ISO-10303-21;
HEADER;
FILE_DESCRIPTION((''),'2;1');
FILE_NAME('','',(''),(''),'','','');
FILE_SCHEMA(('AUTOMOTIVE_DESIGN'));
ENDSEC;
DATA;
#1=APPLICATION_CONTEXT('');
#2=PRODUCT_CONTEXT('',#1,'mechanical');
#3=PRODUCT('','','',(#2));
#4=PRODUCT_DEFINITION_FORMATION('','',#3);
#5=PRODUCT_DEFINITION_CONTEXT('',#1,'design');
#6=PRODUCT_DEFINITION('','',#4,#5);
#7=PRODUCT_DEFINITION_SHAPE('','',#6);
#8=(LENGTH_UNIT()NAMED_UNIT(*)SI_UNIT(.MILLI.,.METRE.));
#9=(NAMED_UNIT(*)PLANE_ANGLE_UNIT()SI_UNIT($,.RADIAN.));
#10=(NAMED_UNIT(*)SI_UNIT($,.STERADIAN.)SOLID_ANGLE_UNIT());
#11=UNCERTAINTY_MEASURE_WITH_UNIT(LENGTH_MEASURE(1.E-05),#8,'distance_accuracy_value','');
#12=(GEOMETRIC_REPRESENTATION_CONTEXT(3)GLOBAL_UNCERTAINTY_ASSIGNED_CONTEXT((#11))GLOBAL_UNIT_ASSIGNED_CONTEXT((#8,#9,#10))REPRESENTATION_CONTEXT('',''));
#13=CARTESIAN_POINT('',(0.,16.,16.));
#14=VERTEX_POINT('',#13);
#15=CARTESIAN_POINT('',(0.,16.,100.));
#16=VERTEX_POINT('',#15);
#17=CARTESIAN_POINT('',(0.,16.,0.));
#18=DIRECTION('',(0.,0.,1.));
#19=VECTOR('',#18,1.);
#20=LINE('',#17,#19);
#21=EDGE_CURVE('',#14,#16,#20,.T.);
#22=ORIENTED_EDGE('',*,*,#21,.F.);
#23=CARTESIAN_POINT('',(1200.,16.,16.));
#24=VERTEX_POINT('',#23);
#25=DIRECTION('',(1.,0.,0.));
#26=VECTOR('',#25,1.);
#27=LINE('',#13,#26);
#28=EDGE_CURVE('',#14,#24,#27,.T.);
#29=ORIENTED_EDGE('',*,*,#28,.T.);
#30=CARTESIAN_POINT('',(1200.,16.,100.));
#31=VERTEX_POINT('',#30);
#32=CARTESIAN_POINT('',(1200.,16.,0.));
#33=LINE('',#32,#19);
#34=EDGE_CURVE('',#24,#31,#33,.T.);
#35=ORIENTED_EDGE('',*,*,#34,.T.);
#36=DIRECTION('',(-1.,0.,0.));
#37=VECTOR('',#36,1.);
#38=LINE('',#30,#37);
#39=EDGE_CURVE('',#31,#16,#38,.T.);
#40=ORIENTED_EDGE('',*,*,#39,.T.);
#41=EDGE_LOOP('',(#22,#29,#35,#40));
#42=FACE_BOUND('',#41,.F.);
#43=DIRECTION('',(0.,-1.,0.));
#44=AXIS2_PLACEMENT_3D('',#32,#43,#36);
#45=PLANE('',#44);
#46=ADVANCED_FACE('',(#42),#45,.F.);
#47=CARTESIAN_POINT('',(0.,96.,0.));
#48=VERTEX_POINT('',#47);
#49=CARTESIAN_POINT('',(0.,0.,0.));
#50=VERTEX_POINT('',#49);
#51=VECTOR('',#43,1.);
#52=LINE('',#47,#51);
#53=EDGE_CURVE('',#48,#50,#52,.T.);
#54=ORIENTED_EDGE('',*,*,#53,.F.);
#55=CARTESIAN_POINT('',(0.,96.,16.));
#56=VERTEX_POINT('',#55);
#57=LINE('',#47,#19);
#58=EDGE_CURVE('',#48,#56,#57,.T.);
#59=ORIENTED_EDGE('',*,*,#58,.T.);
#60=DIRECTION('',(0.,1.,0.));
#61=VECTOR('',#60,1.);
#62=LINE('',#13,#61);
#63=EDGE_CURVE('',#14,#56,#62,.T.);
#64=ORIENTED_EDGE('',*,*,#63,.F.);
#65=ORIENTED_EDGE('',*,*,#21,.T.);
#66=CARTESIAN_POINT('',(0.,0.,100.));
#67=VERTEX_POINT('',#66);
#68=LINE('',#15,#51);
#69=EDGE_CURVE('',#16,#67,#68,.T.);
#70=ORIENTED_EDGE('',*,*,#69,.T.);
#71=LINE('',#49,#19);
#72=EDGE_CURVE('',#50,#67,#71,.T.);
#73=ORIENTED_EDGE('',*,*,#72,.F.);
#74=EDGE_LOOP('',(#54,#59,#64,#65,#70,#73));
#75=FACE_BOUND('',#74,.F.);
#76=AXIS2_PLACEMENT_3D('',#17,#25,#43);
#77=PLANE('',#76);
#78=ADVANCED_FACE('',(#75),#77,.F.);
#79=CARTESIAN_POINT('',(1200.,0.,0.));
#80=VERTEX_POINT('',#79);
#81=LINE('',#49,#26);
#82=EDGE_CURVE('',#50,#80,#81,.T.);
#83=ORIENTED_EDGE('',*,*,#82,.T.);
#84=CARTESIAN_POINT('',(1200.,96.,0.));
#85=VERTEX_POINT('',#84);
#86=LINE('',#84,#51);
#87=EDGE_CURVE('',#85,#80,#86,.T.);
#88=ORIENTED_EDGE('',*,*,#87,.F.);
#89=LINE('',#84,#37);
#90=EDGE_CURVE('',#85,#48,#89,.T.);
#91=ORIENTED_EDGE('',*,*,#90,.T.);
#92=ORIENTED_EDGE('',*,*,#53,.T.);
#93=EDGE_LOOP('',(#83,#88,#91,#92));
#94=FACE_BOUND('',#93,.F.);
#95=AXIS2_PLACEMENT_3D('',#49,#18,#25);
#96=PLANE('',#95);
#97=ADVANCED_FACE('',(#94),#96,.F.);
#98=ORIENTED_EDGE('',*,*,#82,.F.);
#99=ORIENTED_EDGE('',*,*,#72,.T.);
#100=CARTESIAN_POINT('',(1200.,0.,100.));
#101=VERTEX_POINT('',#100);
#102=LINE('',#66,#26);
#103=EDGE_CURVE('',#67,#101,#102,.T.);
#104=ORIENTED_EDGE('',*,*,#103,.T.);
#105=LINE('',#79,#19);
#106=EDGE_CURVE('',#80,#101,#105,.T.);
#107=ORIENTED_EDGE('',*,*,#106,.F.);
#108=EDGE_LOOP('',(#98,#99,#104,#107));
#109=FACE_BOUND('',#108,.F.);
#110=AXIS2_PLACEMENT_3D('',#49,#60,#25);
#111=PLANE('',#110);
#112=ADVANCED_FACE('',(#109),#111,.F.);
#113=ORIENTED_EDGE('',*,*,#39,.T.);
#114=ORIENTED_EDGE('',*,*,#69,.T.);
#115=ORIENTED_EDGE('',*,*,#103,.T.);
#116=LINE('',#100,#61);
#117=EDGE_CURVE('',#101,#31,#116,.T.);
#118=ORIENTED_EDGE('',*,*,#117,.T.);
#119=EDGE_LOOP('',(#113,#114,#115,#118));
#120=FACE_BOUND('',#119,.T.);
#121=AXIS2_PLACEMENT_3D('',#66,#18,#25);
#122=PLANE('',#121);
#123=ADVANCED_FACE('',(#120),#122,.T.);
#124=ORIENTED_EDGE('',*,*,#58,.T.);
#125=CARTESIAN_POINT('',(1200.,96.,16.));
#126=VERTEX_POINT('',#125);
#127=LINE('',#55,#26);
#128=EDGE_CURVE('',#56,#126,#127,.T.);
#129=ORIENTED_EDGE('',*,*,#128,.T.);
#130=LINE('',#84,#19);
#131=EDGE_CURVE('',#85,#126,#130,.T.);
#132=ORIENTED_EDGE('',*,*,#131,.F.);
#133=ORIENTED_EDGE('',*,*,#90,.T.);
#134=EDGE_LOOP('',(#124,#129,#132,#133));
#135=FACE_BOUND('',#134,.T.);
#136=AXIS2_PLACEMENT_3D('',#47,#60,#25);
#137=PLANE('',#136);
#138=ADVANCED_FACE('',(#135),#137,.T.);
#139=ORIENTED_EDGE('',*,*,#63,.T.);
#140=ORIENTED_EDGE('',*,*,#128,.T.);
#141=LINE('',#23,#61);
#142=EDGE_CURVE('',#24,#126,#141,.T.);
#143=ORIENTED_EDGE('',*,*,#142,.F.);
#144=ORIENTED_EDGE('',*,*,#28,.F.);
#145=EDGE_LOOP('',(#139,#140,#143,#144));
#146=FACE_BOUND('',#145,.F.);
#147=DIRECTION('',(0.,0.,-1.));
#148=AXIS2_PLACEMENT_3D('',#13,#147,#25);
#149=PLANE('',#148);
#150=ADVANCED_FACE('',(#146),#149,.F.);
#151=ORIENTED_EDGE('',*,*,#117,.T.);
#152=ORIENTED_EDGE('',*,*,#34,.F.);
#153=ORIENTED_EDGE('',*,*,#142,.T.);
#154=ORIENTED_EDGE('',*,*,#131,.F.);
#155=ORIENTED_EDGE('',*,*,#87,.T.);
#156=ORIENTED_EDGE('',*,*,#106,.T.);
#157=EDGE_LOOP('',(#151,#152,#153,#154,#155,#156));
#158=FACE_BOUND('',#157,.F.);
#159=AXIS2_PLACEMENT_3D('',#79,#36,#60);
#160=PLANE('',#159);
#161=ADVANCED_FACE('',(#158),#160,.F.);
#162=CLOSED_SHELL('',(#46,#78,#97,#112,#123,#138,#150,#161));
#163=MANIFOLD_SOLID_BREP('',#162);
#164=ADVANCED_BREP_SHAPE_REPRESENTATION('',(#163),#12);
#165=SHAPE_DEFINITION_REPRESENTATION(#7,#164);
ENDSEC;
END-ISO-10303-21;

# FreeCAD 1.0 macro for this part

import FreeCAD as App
import Part
import Sketcher
Q = App.Units.Quantity

doc = App.newDocument("Part")
body = doc.addObject("PartDesign::Body", "Body")

sketch1 = body.newObject("Sketcher::SketchObject", "Sketch")
sketch1.AttachmentSupport = (doc.getObject("XY_Plane"), [""])
sketch1.MapMode = "FlatFace"
sketch1.addGeometry(Part.LineSegment(App.Vector(0, 16, 0), App.Vector(0, 0, 0)), False)
sketch1.addGeometry(Part.LineSegment(App.Vector(0, 0, 0), App.Vector(1200, 0, 0)), False)
sketch1.addGeometry(Part.LineSegment(App.Vector(1200, 0, 0), App.Vector(1200, 16, 0)), False)
sketch1.addGeometry(Part.LineSegment(App.Vector(1200, 16, 0), App.Vector(0, 16, 0)), False)
sketch1.addConstraint(Sketcher.Constraint("Coincident", 0, 2, 1, 1))
sketch1.addConstraint(Sketcher.Constraint("Coincident", 1, 2, 2, 1))
sketch1.addConstraint(Sketcher.Constraint("Coincident", 2, 2, 3, 1))
sketch1.addConstraint(Sketcher.Constraint("Coincident", 3, 2, 0, 1))
sketch1.addConstraint(Sketcher.Constraint("Vertical", 0))
sketch1.addConstraint(Sketcher.Constraint("Horizontal", 1))
sketch1.addConstraint(Sketcher.Constraint("Vertical", 2))
sketch1.addConstraint(Sketcher.Constraint("Horizontal", 3))
sketch1.addConstraint(Sketcher.Constraint("Coincident", 0, 2, -1, 1))
sketch1.addConstraint(Sketcher.Constraint("DistanceX", 1, 1, 1, 2, Q("1200 mm")))
sketch1.addConstraint(Sketcher.Constraint("DistanceY", 0, 2, 0, 1, Q("16 mm")))
pad1 = body.newObject("PartDesign::Pad", "Pad")
pad1.Profile = sketch1
pad1.Length = 100

sketch2 = body.newObject("Sketcher::SketchObject", "Sketch001")
sketch2.AttachmentSupport = (doc.getObject("XZ_Plane"), [""])
sketch2.MapMode = "FlatFace"
sketch2.AttachmentOffset = App.Placement(App.Vector(0, 0, -16), App.Rotation())
sketch2.addGeometry(Part.LineSegment(App.Vector(1200, 16, 0), App.Vector(1200, 0, 0)), False)
sketch2.addGeometry(Part.LineSegment(App.Vector(1200, 0, 0), App.Vector(0, 0, 0)), False)
sketch2.addGeometry(Part.LineSegment(App.Vector(0, 0, 0), App.Vector(0, 16, 0)), False)
sketch2.addGeometry(Part.LineSegment(App.Vector(0, 16, 0), App.Vector(1200, 16, 0)), False)
sketch2.addConstraint(Sketcher.Constraint("Coincident", 0, 2, 1, 1))
sketch2.addConstraint(Sketcher.Constraint("Coincident", 1, 2, 2, 1))
sketch2.addConstraint(Sketcher.Constraint("Coincident", 2, 2, 3, 1))
sketch2.addConstraint(Sketcher.Constraint("Coincident", 3, 2, 0, 1))
sketch2.addConstraint(Sketcher.Constraint("Vertical", 0))
sketch2.addConstraint(Sketcher.Constraint("Horizontal", 1))
sketch2.addConstraint(Sketcher.Constraint("Vertical", 2))
sketch2.addConstraint(Sketcher.Constraint("Horizontal", 3))
sketch2.addConstraint(Sketcher.Constraint("Coincident", 1, 2, -1, 1))
sketch2.addConstraint(Sketcher.Constraint("DistanceY", 0, 2, 0, 1, Q("16 mm")))
sketch2.addConstraint(Sketcher.Constraint("DistanceX", 1, 2, 1, 1, Q("1200 mm")))
pad2 = body.newObject("PartDesign::Pad", "Pad001")
pad2.Profile = sketch2
pad2.Length = 80
pad2.Reversed = True

doc.recompute()
